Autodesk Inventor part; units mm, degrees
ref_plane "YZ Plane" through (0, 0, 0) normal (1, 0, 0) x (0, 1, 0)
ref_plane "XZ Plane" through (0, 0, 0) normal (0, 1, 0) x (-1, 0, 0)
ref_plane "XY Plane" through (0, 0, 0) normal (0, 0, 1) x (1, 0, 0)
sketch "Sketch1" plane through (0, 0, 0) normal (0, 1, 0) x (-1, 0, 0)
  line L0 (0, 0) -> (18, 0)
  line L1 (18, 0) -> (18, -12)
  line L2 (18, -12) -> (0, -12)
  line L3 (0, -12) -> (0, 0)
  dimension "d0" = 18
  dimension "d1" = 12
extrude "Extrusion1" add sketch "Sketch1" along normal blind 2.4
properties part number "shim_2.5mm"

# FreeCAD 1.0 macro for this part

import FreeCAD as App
import Part
import Sketcher
Q = App.Units.Quantity


def add_polygon(sketch, points):
    """Adds a closed chain of lines whose ends are joined by coincident constraints."""
    first, n = sketch.GeometryCount, len(points)
    for a, b in zip(points, points[1:] + points[:1]):
        sketch.addGeometry(Part.LineSegment(App.Vector(*a, 0), App.Vector(*b, 0)), False)
    for i in range(n):
        sketch.addConstraint(Sketcher.Constraint("Coincident", first + i, 2, first + (i + 1) % n, 1))

doc = App.newDocument("Part")
params = doc.addObject("Spreadsheet::Sheet", "Params")
for row, (alias, value) in enumerate([
    ("sketch1_width", "18 mm"),
    ("sketch1_height", "12 mm"),
    ("pad1_length", "2.4 mm"),
], start=1):
    params.set(f"A{row}", alias)
    params.set(f"B{row}", "=" + value)
    params.setAlias(f"B{row}", alias)

body = doc.addObject("PartDesign::Body", "Body")

# Sketch on XZ plane
sketch1 = doc.addObject("Sketcher::SketchObject", "Sketch")
body.addObject(sketch1)
sketch1.AttachmentSupport = (doc.XZ_Plane, [""])
sketch1.MapMode = "FlatFace"
add_polygon(sketch1, [(-18, 0), (0, 0), (0, -12), (-18, -12)])  # lines 0-3
sketch1.addConstraint([
    Sketcher.Constraint("Horizontal", 0),
    Sketcher.Constraint("Vertical", 1),
    Sketcher.Constraint("Horizontal", 2),
    Sketcher.Constraint("Vertical", 3),
    Sketcher.Constraint("Coincident", 0, 2, -1, 1),
    Sketcher.Constraint("DistanceX", 0, 1, 0, 2, Q("18 mm")),
    Sketcher.Constraint("DistanceY", 1, 2, 1, 1, Q("12 mm")),
])
sketch1.setExpression("Constraints[9]", "Params.sketch1_width")
sketch1.setExpression("Constraints[10]", "Params.sketch1_height")
pad1 = doc.addObject("PartDesign::Pad", "Pad")
body.addObject(pad1)
pad1.Profile = sketch1
pad1.setExpression("Length", "Params.pad1_length")
pad1.Reversed = True

doc.recompute()
